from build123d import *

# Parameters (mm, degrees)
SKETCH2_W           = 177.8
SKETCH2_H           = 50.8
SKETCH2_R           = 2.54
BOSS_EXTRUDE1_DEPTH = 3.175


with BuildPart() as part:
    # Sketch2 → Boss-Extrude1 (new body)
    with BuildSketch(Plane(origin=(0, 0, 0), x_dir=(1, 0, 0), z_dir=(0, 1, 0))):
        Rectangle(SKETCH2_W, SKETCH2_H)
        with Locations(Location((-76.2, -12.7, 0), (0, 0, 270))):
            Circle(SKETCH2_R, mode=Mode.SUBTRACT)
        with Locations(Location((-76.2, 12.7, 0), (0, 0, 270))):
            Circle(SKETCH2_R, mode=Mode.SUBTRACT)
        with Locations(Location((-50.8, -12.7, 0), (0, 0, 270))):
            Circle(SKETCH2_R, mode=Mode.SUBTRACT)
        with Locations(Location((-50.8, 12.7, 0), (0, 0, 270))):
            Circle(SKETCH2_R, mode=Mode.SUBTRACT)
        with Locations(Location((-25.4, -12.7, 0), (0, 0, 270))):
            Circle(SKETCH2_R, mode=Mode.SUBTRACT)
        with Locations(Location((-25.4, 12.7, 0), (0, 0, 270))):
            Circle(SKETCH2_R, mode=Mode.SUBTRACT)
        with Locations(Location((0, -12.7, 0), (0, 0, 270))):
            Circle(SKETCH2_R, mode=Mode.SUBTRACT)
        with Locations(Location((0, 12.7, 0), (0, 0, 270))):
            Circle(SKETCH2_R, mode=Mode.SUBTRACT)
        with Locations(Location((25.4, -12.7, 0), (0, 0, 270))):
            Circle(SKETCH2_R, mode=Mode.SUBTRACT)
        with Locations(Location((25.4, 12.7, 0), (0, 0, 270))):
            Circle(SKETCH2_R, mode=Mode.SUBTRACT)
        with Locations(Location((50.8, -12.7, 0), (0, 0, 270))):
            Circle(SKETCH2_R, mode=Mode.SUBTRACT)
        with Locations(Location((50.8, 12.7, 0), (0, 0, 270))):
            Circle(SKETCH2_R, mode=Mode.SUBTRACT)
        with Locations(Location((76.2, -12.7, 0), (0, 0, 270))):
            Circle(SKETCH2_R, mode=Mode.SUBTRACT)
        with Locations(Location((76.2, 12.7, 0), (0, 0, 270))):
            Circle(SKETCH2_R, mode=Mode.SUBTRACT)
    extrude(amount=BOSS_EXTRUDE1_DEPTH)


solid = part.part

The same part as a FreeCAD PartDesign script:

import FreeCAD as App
import Part
import Sketcher

V = App.Vector
Q = App.Units.Quantity

doc = App.newDocument("Part")
body = doc.addObject("PartDesign::Body", "Body")

# Sketch on XZ plane
sketch1 = body.newObject("Sketcher::SketchObject", "Sketch")
sketch1.AttachmentSupport = (doc.getObject("XZ_Plane"), [""])
sketch1.MapMode = "FlatFace"
sketch1.addGeometry(Part.LineSegment(V(-88.9, -25.4, 0), V(-88.9, 25.4, 0)), False)
sketch1.addGeometry(Part.LineSegment(V(-88.9, 25.4, 0), V(88.9, 25.4, 0)), False)
sketch1.addGeometry(Part.LineSegment(V(88.9, 25.4, 0), V(88.9, -25.4, 0)), False)
sketch1.addGeometry(Part.LineSegment(V(88.9, -25.4, 0), V(-88.9, -25.4, 0)), False)
sketch1.addGeometry(Part.Circle(V(-76.2, 12.7, 0), V(0, 0, 1), 2.5), False)
sketch1.addGeometry(Part.Circle(V(-50.8, 12.7, 0), V(0, 0, 1), 2.5), False)
sketch1.addGeometry(Part.Circle(V(-25.4, 12.7, 0), V(0, 0, 1), 2.5), False)
sketch1.addGeometry(Part.Circle(V(0, 12.7, 0), V(0, 0, 1), 2.5), False)
sketch1.addGeometry(Part.Circle(V(25.4, 12.7, 0), V(0, 0, 1), 2.5), False)
sketch1.addGeometry(Part.Circle(V(50.8, 12.7, 0), V(0, 0, 1), 2.5), False)
sketch1.addGeometry(Part.Circle(V(76.2, 12.7, 0), V(0, 0, 1), 2.5), False)
sketch1.addGeometry(Part.Circle(V(-76.2, -12.7, 0), V(0, 0, 1), 2.5), False)
sketch1.addGeometry(Part.Circle(V(-50.8, -12.7, 0), V(0, 0, 1), 2.5), False)
sketch1.addGeometry(Part.Circle(V(-25.4, -12.7, 0), V(0, 0, 1), 2.5), False)
sketch1.addGeometry(Part.Circle(V(0, -12.7, 0), V(0, 0, 1), 2.5), False)
sketch1.addGeometry(Part.Circle(V(25.4, -12.7, 0), V(0, 0, 1), 2.5), False)
sketch1.addGeometry(Part.Circle(V(50.8, -12.7, 0), V(0, 0, 1), 2.5), False)
sketch1.addGeometry(Part.Circle(V(76.2, -12.7, 0), V(0, 0, 1), 2.5), False)
sketch1.addConstraint(Sketcher.Constraint("Coincident", 0, 2, 1, 1))
sketch1.addConstraint(Sketcher.Constraint("Coincident", 1, 2, 2, 1))
sketch1.addConstraint(Sketcher.Constraint("Coincident", 2, 2, 3, 1))
sketch1.addConstraint(Sketcher.Constraint("Coincident", 3, 2, 0, 1))
sketch1.addConstraint(Sketcher.Constraint("Vertical", 0))
sketch1.addConstraint(Sketcher.Constraint("Horizontal", 1))
sketch1.addConstraint(Sketcher.Constraint("Vertical", 2))
sketch1.addConstraint(Sketcher.Constraint("Horizontal", 3))
sketch1.addConstraint(Sketcher.Constraint("Equal", 4, 5))
sketch1.addConstraint(Sketcher.Constraint("Equal", 5, 6))
sketch1.addConstraint(Sketcher.Constraint("Equal", 6, 7))
sketch1.addConstraint(Sketcher.Constraint("Equal", 7, 8))
sketch1.addConstraint(Sketcher.Constraint("Equal", 8, 9))
sketch1.addConstraint(Sketcher.Constraint("Equal", 9, 10))
sketch1.addConstraint(Sketcher.Constraint("Equal", 10, 11))
sketch1.addConstraint(Sketcher.Constraint("Equal", 11, 12))
sketch1.addConstraint(Sketcher.Constraint("Equal", 12, 13))
sketch1.addConstraint(Sketcher.Constraint("Equal", 13, 14))
sketch1.addConstraint(Sketcher.Constraint("Equal", 14, 15))
sketch1.addConstraint(Sketcher.Constraint("Equal", 15, 16))
sketch1.addConstraint(Sketcher.Constraint("Equal", 16, 17))
sketch1.addConstraint(Sketcher.Constraint("Symmetric", 10, 3, 11, 3, -1, 1))
sketch1.addConstraint(Sketcher.Constraint("Symmetric", 9, 3, 12, 3, -1, 1))
sketch1.addConstraint(Sketcher.Constraint("Symmetric", 8, 3, 13, 3, -1, 1))
sketch1.addConstraint(Sketcher.Constraint("Symmetric", 7, 3, 14, 3, -1, 1))
sketch1.addConstraint(Sketcher.Constraint("Symmetric", 6, 3, 15, 3, -1, 1))
sketch1.addConstraint(Sketcher.Constraint("Symmetric", 5, 3, 16, 3, -1, 1))
sketch1.addConstraint(Sketcher.Constraint("Symmetric", 4, 3, 17, 3, -1, 1))
sketch1.addConstraint(Sketcher.Constraint("Symmetric", 0, 2, 2, 2, -1, 1))
sketch1.addConstraint(Sketcher.Constraint("Symmetric", 6, 3, 8, 3, -2))
sketch1.addConstraint(Sketcher.Constraint("Symmetric", 5, 3, 9, 3, -2))
sketch1.addConstraint(Sketcher.Constraint("Symmetric", 4, 3, 10, 3, -2))
sketch1.addConstraint(Sketcher.Constraint("PointOnObject", 7, 3, -2))
sketch1.addConstraint(Sketcher.Constraint("Horizontal", 4, 3, 5, 3))
sketch1.addConstraint(Sketcher.Constraint("Horizontal", 5, 3, 6, 3))
sketch1.addConstraint(Sketcher.Constraint("Horizontal", 6, 3, 7, 3))
sketch1.addConstraint(Sketcher.Constraint("Diameter", 4, Q("0.2 in")))
sketch1.addConstraint(Sketcher.Constraint("DistanceX", 1, 1, 1, 2, Q("7 in")))
sketch1.addConstraint(Sketcher.Constraint("DistanceY", 0, 1, 0, 2, Q("2 in")))
sketch1.addConstraint(Sketcher.Constraint("DistanceX", 4, 3, -1, 1, Q("3 in")))
sketch1.addConstraint(Sketcher.Constraint("DistanceX", 5, 3, -1, 1, Q("2 in")))
sketch1.addConstraint(Sketcher.Constraint("DistanceX", 6, 3, -1, 1, Q("1 in")))
sketch1.addConstraint(Sketcher.Constraint("DistanceY", 11, 3, 4, 3, Q("1 in")))
pad1 = body.newObject("PartDesign::Pad", "Pad")
pad1.Profile = sketch1
pad1.Length = Q("0.125 in")
pad1.Reversed = True

doc.recompute()
